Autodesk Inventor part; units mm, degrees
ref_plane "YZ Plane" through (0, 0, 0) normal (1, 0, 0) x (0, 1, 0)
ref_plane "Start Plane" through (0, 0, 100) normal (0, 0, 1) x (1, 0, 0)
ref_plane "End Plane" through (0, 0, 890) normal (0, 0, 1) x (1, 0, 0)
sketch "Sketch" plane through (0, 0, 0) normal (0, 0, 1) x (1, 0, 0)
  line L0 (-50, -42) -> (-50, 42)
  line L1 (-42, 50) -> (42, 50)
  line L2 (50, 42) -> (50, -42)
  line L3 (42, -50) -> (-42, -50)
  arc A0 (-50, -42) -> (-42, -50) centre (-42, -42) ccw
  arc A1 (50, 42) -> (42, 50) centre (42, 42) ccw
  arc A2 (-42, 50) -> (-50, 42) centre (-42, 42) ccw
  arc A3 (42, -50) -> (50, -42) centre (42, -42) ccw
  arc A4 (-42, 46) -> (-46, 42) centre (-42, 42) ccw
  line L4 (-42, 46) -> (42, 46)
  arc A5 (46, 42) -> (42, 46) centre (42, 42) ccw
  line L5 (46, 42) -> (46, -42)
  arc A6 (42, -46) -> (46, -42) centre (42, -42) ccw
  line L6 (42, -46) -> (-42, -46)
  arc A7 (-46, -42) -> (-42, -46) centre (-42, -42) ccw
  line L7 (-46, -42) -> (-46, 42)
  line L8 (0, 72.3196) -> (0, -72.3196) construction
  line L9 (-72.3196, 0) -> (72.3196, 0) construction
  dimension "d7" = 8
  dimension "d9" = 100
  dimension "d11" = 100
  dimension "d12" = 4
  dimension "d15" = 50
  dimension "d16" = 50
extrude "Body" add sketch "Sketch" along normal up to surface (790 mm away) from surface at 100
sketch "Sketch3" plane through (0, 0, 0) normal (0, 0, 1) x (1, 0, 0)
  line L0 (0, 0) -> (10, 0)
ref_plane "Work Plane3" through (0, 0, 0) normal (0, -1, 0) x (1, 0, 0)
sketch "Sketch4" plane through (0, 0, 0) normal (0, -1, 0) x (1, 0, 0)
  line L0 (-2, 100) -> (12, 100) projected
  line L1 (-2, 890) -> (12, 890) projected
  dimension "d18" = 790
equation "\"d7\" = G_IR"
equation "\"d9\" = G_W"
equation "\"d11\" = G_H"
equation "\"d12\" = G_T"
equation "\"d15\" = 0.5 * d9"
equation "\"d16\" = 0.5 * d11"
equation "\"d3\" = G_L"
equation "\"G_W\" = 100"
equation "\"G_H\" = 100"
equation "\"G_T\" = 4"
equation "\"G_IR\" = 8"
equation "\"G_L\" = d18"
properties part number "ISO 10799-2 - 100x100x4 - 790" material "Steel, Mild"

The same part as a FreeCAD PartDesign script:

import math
import FreeCAD as App
import Part
import Sketcher
from FreeCAD import Vector

doc = App.newDocument("Part")
body = doc.addObject("PartDesign::Body", "Body")

sketch1 = body.newObject("Sketcher::SketchObject", "Sketch")
sketch1.AttachmentSupport = (doc.getObject("XY_Plane"), [""])
sketch1.MapMode = "FlatFace"
sketch1.AttachmentOffset = App.Placement(Vector(0, 0, 100), App.Rotation())
sketch1.addGeometry(Part.LineSegment(Vector(-50, 42, 0), Vector(-50, -42, 0)), False)
sketch1.addGeometry(Part.ArcOfCircle(Part.Circle(Vector(-42, -42, 0), Vector(0, 0, 1), 8), math.radians(180), math.radians(270)), False)
sketch1.addGeometry(Part.LineSegment(Vector(-42, -50, 0), Vector(42, -50, 0)), False)
sketch1.addGeometry(Part.ArcOfCircle(Part.Circle(Vector(42, -42, 0), Vector(0, 0, 1), 8), math.radians(-90), math.radians(0)), False)
sketch1.addGeometry(Part.LineSegment(Vector(50, -42, 0), Vector(50, 42, 0)), False)
sketch1.addGeometry(Part.ArcOfCircle(Part.Circle(Vector(42, 42, 0), Vector(0, 0, 1), 8), math.radians(0), math.radians(90)), False)
sketch1.addGeometry(Part.LineSegment(Vector(42, 50, 0), Vector(-42, 50, 0)), False)
sketch1.addGeometry(Part.ArcOfCircle(Part.Circle(Vector(-42, 42, 0), Vector(0, 0, 1), 8), math.radians(90), math.radians(180)), False)
sketch1.addGeometry(Part.ArcOfCircle(Part.Circle(Vector(-42, 42, 0), Vector(0, 0, 1), 4), math.radians(90), math.radians(180)), False)
sketch1.addGeometry(Part.LineSegment(Vector(-42, 46, 0), Vector(42, 46, 0)), False)
sketch1.addGeometry(Part.ArcOfCircle(Part.Circle(Vector(42, 42, 0), Vector(0, 0, 1), 4), math.radians(0), math.radians(90)), False)
sketch1.addGeometry(Part.LineSegment(Vector(46, 42, 0), Vector(46, -42, 0)), False)
sketch1.addGeometry(Part.ArcOfCircle(Part.Circle(Vector(42, -42, 0), Vector(0, 0, 1), 4), math.radians(-90), math.radians(0)), False)
sketch1.addGeometry(Part.LineSegment(Vector(42, -46, 0), Vector(-42, -46, 0)), False)
sketch1.addGeometry(Part.ArcOfCircle(Part.Circle(Vector(-42, -42, 0), Vector(0, 0, 1), 4), math.radians(180), math.radians(270)), False)
sketch1.addGeometry(Part.LineSegment(Vector(-46, -42, 0), Vector(-46, 42, 0)), False)
sketch1.addConstraint(Sketcher.Constraint("Tangent", 0, 2, 1, 1))
sketch1.addConstraint(Sketcher.Constraint("Tangent", 1, 2, 2, 1))
sketch1.addConstraint(Sketcher.Constraint("Tangent", 2, 2, 3, 1))
sketch1.addConstraint(Sketcher.Constraint("Tangent", 3, 2, 4, 1))
sketch1.addConstraint(Sketcher.Constraint("Tangent", 4, 2, 5, 1))
sketch1.addConstraint(Sketcher.Constraint("Tangent", 5, 2, 6, 1))
sketch1.addConstraint(Sketcher.Constraint("Tangent", 6, 2, 7, 1))
sketch1.addConstraint(Sketcher.Constraint("Tangent", 7, 2, 0, 1))
sketch1.addConstraint(Sketcher.Constraint("Tangent", 8, 1, 9, 1))
sketch1.addConstraint(Sketcher.Constraint("Tangent", 9, 2, 10, 2))
sketch1.addConstraint(Sketcher.Constraint("Tangent", 10, 1, 11, 1))
sketch1.addConstraint(Sketcher.Constraint("Tangent", 11, 2, 12, 2))
sketch1.addConstraint(Sketcher.Constraint("Tangent", 12, 1, 13, 1))
sketch1.addConstraint(Sketcher.Constraint("Tangent", 13, 2, 14, 2))
sketch1.addConstraint(Sketcher.Constraint("Tangent", 14, 1, 15, 1))
sketch1.addConstraint(Sketcher.Constraint("Tangent", 15, 2, 8, 2))
sketch1.addConstraint(Sketcher.Constraint("Vertical", 0))
sketch1.addConstraint(Sketcher.Constraint("Horizontal", 2))
sketch1.addConstraint(Sketcher.Constraint("Vertical", 4))
sketch1.addConstraint(Sketcher.Constraint("Horizontal", 6))
sketch1.addConstraint(Sketcher.Constraint("Horizontal", 9))
sketch1.addConstraint(Sketcher.Constraint("Vertical", 11))
sketch1.addConstraint(Sketcher.Constraint("Horizontal", 13))
sketch1.addConstraint(Sketcher.Constraint("Vertical", 15))
sketch1.addConstraint(Sketcher.Constraint("Coincident", 8, 3, 7, 3))
sketch1.addConstraint(Sketcher.Constraint("Coincident", 10, 3, 5, 3))
sketch1.addConstraint(Sketcher.Constraint("Coincident", 12, 3, 3, 3))
sketch1.addConstraint(Sketcher.Constraint("Equal", 1, 3))
sketch1.addConstraint(Sketcher.Constraint("Equal", 3, 5))
sketch1.addConstraint(Sketcher.Constraint("Equal", 5, 7))
sketch1.addConstraint(Sketcher.Constraint("Equal", 12, 14))
sketch1.addConstraint(Sketcher.Constraint("Symmetric", 1, 3, 5, 3, -1, 1))
sketch1.addConstraint(Sketcher.Constraint("Equal", 13, 0))
sketch1.addConstraint(Sketcher.Constraint("Radius", 1, 8.0))
sketch1.addConstraint(Sketcher.Constraint("Radius", 8, 4.0))
sketch1.addConstraint(Sketcher.Constraint("DistanceX", 0, 2, -1, 1, 50.0))
pad1 = body.newObject("PartDesign::Pad", "Pad")
pad1.Profile = sketch1
pad1.Length = 790

doc.recompute()
